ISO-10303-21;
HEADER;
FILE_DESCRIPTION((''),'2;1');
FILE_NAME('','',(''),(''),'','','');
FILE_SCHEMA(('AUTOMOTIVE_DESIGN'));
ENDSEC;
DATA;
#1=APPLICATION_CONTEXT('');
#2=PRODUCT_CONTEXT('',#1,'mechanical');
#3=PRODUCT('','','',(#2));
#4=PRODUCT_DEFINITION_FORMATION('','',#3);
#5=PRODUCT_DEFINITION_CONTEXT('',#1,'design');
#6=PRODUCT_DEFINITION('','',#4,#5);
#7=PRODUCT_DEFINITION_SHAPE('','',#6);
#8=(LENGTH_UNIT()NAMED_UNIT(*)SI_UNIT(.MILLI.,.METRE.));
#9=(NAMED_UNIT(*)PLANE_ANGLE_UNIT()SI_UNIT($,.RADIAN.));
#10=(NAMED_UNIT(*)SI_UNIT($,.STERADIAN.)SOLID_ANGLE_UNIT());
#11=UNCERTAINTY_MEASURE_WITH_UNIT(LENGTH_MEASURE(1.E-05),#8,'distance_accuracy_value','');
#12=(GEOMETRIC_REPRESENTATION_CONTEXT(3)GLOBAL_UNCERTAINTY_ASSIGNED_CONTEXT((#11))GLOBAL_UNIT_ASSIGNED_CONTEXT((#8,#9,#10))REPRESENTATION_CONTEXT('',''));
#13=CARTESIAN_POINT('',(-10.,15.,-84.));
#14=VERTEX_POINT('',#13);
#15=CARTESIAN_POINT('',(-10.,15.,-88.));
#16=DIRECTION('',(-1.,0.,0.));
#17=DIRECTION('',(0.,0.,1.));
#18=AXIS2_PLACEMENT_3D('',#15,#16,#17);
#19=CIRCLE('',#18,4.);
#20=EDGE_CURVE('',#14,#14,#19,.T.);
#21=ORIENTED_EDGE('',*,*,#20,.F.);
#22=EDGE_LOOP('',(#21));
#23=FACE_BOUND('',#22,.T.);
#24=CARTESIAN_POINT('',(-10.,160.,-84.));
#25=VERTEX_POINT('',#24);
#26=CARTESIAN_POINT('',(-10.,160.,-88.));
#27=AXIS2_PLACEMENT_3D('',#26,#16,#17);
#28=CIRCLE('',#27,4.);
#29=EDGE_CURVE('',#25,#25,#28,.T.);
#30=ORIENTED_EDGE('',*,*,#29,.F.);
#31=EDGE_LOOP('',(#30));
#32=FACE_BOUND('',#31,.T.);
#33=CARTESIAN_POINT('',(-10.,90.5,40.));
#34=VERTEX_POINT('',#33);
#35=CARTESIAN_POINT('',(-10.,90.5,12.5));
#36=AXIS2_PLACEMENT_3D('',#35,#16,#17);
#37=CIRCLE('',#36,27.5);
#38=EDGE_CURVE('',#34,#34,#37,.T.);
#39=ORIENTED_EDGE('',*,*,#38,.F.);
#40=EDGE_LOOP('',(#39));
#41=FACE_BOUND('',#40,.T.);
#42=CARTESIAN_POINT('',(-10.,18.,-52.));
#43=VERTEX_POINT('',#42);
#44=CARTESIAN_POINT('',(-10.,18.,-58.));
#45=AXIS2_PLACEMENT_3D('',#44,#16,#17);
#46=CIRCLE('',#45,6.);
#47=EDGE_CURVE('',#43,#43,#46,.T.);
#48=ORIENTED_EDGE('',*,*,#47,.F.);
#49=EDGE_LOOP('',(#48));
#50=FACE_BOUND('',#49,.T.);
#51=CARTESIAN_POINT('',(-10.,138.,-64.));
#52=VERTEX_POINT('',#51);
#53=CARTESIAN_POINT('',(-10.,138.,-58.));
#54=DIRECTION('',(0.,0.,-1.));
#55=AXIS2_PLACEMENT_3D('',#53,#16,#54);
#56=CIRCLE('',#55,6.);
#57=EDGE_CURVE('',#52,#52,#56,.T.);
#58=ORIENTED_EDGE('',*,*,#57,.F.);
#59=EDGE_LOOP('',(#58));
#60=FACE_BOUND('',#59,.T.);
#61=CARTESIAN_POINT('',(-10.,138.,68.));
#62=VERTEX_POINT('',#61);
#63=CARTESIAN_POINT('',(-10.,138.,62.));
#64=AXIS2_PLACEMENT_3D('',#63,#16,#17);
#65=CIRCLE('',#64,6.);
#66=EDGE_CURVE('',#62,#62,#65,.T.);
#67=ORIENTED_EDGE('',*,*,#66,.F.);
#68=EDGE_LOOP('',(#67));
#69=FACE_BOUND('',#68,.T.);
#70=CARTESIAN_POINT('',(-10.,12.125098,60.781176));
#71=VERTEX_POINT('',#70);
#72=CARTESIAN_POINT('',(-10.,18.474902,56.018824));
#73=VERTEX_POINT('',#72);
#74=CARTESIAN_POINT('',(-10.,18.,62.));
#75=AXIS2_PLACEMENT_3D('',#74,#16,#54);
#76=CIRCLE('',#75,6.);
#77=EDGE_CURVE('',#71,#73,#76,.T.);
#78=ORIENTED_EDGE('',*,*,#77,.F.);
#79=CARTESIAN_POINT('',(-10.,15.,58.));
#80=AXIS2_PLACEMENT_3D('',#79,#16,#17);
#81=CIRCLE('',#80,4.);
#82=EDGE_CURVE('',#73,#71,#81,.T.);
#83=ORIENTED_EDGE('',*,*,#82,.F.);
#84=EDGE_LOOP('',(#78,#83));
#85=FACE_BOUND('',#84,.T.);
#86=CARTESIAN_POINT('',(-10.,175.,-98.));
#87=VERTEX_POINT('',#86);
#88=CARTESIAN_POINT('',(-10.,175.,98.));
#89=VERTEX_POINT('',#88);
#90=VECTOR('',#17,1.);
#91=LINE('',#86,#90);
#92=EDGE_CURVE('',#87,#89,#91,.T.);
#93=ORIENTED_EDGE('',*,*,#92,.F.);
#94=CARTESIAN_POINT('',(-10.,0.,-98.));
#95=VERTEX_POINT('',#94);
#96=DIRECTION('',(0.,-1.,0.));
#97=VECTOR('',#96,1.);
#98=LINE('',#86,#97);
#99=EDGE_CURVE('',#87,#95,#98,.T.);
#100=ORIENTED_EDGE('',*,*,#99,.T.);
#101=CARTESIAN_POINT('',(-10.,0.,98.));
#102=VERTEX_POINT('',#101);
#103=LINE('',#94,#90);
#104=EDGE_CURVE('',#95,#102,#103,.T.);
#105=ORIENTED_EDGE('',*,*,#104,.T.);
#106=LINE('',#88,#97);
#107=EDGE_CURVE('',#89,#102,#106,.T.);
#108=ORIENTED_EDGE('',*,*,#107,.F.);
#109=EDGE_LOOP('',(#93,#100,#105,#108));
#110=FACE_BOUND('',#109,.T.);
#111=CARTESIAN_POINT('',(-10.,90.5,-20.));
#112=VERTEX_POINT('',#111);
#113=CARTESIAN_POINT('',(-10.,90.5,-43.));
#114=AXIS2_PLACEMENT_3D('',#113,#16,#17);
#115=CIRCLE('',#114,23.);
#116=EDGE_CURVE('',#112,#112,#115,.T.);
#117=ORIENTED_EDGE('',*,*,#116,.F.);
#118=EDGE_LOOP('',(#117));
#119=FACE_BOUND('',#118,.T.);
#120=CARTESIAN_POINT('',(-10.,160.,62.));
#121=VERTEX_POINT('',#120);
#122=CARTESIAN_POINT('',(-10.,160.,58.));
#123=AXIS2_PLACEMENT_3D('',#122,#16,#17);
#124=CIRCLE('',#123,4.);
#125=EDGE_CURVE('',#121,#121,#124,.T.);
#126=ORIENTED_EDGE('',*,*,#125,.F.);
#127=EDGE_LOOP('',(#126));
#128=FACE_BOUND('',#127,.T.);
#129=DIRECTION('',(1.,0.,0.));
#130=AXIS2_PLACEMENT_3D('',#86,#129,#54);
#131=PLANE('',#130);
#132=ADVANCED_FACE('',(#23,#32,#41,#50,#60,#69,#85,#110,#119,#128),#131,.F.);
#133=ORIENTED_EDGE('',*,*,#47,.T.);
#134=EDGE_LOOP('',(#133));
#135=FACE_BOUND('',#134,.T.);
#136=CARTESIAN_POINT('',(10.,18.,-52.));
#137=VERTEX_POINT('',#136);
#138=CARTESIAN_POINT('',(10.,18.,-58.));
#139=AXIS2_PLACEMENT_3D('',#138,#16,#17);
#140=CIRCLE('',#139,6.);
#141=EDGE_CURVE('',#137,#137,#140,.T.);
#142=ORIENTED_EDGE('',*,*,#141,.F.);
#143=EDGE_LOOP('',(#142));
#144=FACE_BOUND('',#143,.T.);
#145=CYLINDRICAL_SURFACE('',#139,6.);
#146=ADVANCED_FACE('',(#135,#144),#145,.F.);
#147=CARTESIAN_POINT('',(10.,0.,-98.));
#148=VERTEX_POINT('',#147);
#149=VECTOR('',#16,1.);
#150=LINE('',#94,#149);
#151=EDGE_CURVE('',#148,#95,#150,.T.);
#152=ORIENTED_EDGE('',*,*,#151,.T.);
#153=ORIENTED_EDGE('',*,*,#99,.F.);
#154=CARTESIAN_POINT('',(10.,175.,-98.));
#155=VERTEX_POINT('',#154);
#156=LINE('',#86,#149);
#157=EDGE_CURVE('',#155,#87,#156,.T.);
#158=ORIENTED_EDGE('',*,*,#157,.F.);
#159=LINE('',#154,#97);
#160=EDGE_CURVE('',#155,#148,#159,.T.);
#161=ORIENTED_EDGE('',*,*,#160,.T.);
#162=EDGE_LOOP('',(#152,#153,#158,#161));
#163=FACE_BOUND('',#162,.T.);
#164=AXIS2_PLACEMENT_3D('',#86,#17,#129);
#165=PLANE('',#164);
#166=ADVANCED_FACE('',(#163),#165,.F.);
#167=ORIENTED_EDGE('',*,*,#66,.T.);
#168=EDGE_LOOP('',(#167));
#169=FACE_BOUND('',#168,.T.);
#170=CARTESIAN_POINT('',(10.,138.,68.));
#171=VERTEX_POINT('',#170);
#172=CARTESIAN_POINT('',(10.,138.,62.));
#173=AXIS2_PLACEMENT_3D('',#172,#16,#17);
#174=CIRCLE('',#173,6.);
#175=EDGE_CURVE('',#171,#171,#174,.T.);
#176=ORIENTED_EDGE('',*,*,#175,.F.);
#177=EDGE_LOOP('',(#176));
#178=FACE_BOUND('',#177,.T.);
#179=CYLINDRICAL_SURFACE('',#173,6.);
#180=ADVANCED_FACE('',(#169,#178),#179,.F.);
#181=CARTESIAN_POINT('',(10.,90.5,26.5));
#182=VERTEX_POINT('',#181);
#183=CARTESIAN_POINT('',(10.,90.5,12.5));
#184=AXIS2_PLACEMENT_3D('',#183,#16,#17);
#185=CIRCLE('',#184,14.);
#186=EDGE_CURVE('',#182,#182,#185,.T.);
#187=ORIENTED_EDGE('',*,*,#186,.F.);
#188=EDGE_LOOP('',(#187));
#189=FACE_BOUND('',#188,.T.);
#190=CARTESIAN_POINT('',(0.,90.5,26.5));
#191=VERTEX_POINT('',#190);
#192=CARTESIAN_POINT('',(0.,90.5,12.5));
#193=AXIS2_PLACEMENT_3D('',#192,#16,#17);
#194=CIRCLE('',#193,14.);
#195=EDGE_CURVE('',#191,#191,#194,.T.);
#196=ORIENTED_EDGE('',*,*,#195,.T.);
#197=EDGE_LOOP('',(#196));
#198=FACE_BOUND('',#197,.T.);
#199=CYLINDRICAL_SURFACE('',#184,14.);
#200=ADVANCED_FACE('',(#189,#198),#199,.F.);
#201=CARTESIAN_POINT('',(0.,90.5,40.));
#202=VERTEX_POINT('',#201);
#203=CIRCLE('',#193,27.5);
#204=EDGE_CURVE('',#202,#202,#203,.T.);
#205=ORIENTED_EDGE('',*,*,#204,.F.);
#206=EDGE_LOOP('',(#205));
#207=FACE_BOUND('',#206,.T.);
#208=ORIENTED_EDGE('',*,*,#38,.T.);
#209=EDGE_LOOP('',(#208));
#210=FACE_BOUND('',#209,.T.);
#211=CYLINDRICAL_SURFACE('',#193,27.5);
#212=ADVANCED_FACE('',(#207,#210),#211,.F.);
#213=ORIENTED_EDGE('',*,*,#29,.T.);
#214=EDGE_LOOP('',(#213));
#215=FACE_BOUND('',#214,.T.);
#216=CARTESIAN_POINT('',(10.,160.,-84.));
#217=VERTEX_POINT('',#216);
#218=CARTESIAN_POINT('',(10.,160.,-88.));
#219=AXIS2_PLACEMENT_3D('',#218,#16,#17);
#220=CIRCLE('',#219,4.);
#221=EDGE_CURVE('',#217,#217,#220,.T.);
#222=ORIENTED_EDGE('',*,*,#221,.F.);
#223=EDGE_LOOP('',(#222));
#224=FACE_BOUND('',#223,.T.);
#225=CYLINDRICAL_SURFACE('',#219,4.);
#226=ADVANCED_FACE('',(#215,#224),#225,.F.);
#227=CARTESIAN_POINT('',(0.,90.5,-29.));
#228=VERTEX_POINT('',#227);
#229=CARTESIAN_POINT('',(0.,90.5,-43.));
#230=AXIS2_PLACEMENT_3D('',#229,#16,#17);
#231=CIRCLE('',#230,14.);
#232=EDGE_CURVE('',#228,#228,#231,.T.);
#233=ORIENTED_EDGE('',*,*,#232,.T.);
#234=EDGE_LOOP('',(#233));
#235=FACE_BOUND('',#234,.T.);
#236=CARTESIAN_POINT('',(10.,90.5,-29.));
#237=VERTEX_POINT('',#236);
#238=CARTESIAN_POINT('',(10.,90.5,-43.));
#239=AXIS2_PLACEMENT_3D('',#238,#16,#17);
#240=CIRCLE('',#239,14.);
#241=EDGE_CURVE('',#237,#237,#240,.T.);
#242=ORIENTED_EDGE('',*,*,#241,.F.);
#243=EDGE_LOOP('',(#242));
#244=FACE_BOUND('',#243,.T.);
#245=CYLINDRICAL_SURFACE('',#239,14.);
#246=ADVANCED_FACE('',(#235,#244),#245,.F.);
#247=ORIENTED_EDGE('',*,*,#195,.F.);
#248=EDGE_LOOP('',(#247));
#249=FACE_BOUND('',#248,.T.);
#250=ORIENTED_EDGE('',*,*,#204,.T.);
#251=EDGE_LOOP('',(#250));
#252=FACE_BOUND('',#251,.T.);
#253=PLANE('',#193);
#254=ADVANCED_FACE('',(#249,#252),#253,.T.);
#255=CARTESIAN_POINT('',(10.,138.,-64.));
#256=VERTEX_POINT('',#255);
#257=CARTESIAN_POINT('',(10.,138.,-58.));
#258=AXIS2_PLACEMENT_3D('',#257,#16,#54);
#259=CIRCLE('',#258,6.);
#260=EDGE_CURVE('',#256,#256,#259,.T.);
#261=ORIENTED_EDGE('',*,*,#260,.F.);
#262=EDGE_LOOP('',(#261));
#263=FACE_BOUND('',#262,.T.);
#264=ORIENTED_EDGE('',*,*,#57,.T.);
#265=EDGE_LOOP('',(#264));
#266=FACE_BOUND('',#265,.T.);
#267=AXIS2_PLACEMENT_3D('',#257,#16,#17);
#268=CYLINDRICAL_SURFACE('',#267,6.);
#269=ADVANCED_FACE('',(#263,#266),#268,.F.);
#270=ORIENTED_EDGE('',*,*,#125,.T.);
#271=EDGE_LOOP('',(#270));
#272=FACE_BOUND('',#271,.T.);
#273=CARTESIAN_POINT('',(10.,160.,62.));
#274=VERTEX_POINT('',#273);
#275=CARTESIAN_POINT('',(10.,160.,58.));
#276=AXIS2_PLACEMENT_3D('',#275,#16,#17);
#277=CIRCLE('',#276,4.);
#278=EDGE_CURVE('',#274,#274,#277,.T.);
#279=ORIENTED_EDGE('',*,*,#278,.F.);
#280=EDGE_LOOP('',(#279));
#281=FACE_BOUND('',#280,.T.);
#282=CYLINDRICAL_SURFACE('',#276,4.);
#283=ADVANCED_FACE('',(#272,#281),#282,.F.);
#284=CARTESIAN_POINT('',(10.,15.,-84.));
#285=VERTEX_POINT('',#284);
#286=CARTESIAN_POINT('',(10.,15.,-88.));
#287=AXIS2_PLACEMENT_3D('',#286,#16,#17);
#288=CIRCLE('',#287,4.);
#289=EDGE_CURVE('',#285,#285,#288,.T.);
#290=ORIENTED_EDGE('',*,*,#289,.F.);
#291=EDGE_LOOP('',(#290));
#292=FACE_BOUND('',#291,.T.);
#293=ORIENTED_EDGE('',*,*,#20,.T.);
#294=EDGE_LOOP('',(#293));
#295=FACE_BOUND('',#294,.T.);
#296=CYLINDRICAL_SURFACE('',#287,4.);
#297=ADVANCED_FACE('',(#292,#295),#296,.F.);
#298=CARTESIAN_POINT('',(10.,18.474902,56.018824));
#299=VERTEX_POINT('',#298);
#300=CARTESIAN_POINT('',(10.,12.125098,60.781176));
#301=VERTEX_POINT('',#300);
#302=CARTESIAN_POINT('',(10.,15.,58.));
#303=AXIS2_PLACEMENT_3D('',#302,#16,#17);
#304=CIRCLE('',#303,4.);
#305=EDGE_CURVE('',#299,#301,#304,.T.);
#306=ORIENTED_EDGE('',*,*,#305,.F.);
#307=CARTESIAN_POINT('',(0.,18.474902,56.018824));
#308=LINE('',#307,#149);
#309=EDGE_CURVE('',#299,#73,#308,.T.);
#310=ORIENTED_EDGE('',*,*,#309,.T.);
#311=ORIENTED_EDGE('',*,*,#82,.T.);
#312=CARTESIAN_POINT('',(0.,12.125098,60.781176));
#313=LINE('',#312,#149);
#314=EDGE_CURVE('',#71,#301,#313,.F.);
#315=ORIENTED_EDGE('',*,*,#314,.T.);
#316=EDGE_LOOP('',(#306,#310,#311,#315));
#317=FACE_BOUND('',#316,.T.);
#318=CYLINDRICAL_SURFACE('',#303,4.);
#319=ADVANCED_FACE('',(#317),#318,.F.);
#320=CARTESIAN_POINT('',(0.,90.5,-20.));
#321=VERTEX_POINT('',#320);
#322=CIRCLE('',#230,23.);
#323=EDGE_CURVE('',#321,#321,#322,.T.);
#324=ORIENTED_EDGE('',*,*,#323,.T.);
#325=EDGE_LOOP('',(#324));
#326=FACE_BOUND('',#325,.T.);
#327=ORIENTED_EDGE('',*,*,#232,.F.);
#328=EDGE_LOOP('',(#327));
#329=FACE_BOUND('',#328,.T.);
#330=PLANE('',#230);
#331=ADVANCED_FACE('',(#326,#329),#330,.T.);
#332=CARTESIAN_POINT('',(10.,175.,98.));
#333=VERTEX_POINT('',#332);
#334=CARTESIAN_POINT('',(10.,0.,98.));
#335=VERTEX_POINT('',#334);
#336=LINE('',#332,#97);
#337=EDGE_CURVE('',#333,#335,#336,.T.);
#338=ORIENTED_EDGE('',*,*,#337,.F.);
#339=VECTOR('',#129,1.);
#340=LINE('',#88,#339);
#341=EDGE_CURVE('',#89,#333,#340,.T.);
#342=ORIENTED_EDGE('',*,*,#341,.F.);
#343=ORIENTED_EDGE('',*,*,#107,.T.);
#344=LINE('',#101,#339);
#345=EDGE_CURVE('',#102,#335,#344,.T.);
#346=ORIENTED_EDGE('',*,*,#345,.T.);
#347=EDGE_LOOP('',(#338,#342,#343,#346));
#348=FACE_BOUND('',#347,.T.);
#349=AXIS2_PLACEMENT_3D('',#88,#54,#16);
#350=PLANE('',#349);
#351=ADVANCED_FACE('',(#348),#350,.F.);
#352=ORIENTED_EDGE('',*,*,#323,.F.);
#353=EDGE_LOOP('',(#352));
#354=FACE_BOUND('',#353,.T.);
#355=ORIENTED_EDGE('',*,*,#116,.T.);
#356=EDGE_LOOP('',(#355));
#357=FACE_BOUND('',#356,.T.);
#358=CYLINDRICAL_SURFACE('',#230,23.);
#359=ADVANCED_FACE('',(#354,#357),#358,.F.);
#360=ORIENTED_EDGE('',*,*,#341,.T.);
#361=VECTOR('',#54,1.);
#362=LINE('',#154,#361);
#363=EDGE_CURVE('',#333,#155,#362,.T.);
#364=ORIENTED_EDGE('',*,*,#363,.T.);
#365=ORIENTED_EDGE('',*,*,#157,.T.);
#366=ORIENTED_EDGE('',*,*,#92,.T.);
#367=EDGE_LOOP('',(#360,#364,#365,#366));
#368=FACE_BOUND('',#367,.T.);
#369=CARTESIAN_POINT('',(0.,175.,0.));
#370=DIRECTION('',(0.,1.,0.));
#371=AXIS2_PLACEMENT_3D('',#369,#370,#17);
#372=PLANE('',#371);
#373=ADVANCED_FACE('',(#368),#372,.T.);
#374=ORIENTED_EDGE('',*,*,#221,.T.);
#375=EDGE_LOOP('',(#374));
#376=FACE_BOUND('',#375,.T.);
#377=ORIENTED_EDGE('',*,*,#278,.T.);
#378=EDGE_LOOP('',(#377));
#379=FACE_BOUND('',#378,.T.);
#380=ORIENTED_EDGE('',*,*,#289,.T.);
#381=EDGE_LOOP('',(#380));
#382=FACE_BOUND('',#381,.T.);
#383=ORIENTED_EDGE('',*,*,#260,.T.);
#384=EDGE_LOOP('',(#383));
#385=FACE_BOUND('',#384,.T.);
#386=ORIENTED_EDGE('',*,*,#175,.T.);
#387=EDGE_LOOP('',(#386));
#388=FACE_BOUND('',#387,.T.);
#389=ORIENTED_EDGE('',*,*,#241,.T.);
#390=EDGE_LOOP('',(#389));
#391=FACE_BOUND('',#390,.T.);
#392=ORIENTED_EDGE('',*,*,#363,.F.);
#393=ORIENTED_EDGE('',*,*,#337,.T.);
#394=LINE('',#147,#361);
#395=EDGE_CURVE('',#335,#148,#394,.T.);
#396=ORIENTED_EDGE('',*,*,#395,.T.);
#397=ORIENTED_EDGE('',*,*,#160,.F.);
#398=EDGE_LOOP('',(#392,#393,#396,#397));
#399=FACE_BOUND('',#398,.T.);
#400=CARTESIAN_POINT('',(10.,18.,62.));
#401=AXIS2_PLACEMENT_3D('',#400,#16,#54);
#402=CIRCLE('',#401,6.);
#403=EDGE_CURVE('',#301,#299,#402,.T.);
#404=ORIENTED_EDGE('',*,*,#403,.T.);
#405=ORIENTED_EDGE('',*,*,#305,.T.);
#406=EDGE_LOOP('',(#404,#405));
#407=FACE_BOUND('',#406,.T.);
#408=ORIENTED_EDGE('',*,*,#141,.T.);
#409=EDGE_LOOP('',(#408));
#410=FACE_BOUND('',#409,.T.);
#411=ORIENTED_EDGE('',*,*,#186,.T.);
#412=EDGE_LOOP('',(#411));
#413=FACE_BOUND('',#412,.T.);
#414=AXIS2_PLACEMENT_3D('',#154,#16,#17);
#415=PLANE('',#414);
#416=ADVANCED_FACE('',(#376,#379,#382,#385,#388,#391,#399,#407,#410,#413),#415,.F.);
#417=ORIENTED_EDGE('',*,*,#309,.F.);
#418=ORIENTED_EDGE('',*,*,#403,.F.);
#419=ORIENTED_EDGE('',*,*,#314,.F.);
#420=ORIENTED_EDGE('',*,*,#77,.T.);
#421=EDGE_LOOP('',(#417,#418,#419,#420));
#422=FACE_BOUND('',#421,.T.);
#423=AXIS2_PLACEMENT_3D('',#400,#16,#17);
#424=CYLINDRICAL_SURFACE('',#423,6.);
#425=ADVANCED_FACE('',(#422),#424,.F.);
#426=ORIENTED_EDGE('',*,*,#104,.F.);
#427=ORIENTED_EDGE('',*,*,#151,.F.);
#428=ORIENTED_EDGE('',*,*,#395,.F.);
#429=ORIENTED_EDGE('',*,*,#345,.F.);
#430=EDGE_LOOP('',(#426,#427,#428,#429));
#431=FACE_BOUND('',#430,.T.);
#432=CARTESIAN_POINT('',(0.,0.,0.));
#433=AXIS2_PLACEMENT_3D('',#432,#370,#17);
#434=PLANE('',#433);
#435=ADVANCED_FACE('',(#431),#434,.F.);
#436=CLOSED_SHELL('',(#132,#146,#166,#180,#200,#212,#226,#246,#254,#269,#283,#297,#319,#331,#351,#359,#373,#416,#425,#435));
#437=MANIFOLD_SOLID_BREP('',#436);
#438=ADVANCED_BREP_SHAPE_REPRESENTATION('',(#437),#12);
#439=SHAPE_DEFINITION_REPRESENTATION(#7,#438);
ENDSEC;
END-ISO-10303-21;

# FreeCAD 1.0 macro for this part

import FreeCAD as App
import Part
import Sketcher


def add_polygon(sketch, points):
    """Adds a closed chain of lines whose ends are joined by coincident constraints."""
    first, n = sketch.GeometryCount, len(points)
    for a, b in zip(points, points[1:] + points[:1]):
        sketch.addGeometry(Part.LineSegment(App.Vector(*a, 0), App.Vector(*b, 0)), False)
    for i in range(n):
        sketch.addConstraint(Sketcher.Constraint("Coincident", first + i, 2, first + (i + 1) % n, 1))

doc = App.newDocument("Part")
body = doc.addObject("PartDesign::Body", "Body")

sketch1 = body.newObject("Sketcher::SketchObject", "Sketch")
sketch1.AttachmentSupport = (doc.getObject("XZ_Plane"), [""])
sketch1.MapMode = "FlatFace"
add_polygon(sketch1, [(-10, -98), (-10, 98), (10, 98), (10, -98)])
sketch1.addConstraint(Sketcher.Constraint("Vertical", 0))
sketch1.addConstraint(Sketcher.Constraint("Horizontal", 1))
sketch1.addConstraint(Sketcher.Constraint("Vertical", 2))
sketch1.addConstraint(Sketcher.Constraint("Horizontal", 3))
sketch1.addConstraint(Sketcher.Constraint("Symmetric", 0, 2, 2, 2, -1, 1))
sketch1.addConstraint(Sketcher.Constraint("DistanceX", 1, 1, 1, 2, 20.0))
sketch1.addConstraint(Sketcher.Constraint("DistanceY", 0, 1, 0, 2, 196.0))
pad1 = body.newObject("PartDesign::Pad", "Pad")
pad1.Profile = sketch1
pad1.Length = 175
pad1.Reversed = True

sketch2 = body.newObject("Sketcher::SketchObject", "Sketch001")
sketch2.AttachmentSupport = (doc.getObject("YZ_Plane"), [""])
sketch2.MapMode = "FlatFace"
sketch2.AttachmentOffset = App.Placement(App.Vector(0, 0, -10), App.Rotation())
sketch2.addGeometry(Part.Circle(App.Vector(90, 12, 0), App.Vector(0, 0, 1), 28), False)
sketch2.addGeometry(Part.Circle(App.Vector(90, -43, 0), App.Vector(0, 0, 1), 23), False)
sketch2.addConstraint(Sketcher.Constraint("Vertical", 0, 3, 1, 3))
sketch2.addConstraint(Sketcher.Constraint("Diameter", 0, 55.0))
sketch2.addConstraint(Sketcher.Constraint("Diameter", 1, 46.0))
sketch2.addConstraint(Sketcher.Constraint("DistanceY", 1, 3, -1, 1, 43.0))
sketch2.addConstraint(Sketcher.Constraint("DistanceX", -1, 1, 0, 3, 90.5))
sketch2.addConstraint(Sketcher.Constraint("DistanceY", -1, 1, 0, 3, 12.5))
pocket1 = body.newObject("PartDesign::Pocket", "Pocket")
pocket1.Profile = sketch2
pocket1.Length = 10
pocket1.Reversed = True

sketch3 = body.newObject("Sketcher::SketchObject", "Sketch002")
sketch3.AttachmentSupport = (doc.getObject("YZ_Plane"), [""])
sketch3.MapMode = "FlatFace"
sketch3.addGeometry(Part.Circle(App.Vector(90, 12, 0), App.Vector(0, 0, 1), 14), False)
sketch3.addGeometry(Part.Circle(App.Vector(90, -43, 0), App.Vector(0, 0, 1), 14), False)
sketch3.addConstraint(Sketcher.Constraint("Equal", 0, 1))
sketch3.addConstraint(Sketcher.Constraint("Vertical", 0, 3, 1, 3))
sketch3.addConstraint(Sketcher.Constraint("Diameter", 0, 28.0))
sketch3.addConstraint(Sketcher.Constraint("DistanceY", 1, 3, -1, 1, 43.0))
sketch3.addConstraint(Sketcher.Constraint("DistanceX", -1, 1, 0, 3, 90.5))
sketch3.addConstraint(Sketcher.Constraint("DistanceY", -1, 1, 0, 3, 12.5))
pocket2 = body.newObject("PartDesign::Pocket", "Pocket001")
pocket2.Profile = sketch3
pocket2.Type = "ThroughAll"
pocket2.Reversed = True

sketch4 = body.newObject("Sketcher::SketchObject", "Sketch003")
sketch4.AttachmentSupport = (doc.getObject("YZ_Plane"), [""])
sketch4.MapMode = "FlatFace"
sketch4.AttachmentOffset = App.Placement(App.Vector(0, 0, -10), App.Rotation())
sketch4.addGeometry(Part.Circle(App.Vector(15, 58, 0), App.Vector(0, 0, 1), 4), False)
sketch4.addGeometry(Part.Circle(App.Vector(15, -88, 0), App.Vector(0, 0, 1), 4), False)
sketch4.addGeometry(Part.Circle(App.Vector(160, -88, 0), App.Vector(0, 0, 1), 4), False)
sketch4.addGeometry(Part.Circle(App.Vector(160, 58, 0), App.Vector(0, 0, 1), 4), False)
sketch4.addConstraint(Sketcher.Constraint("Equal", 0, 1))
sketch4.addConstraint(Sketcher.Constraint("Equal", 1, 2))
sketch4.addConstraint(Sketcher.Constraint("Equal", 2, 3))
sketch4.addConstraint(Sketcher.Constraint("Horizontal", 1, 3, 2, 3))
sketch4.addConstraint(Sketcher.Constraint("Horizontal", 0, 3, 3, 3))
sketch4.addConstraint(Sketcher.Constraint("Vertical", 0, 3, 1, 3))
sketch4.addConstraint(Sketcher.Constraint("Vertical", 2, 3, 3, 3))
sketch4.addConstraint(Sketcher.Constraint("Diameter", 0, 8.0))
sketch4.addConstraint(Sketcher.Constraint("DistanceX", -1, 1, 0, 3, 15.0))
sketch4.addConstraint(Sketcher.Constraint("DistanceY", -1, 1, 0, 3, 58.0))
sketch4.addConstraint(Sketcher.Constraint("DistanceY", 1, 3, -1, 1, 88.0))
sketch4.addConstraint(Sketcher.Constraint("DistanceX", -1, 1, 2, 3, 160.0))
pocket3 = body.newObject("PartDesign::Pocket", "Pocket002")
pocket3.Profile = sketch4
pocket3.Type = "ThroughAll"
pocket3.Reversed = True

sketch5 = body.newObject("Sketcher::SketchObject", "Sketch004")
sketch5.AttachmentSupport = (doc.getObject("YZ_Plane"), [""])
sketch5.MapMode = "FlatFace"
sketch5.AttachmentOffset = App.Placement(App.Vector(0, 0, -10), App.Rotation())
sketch5.addGeometry(Part.Circle(App.Vector(138, 62, 0), App.Vector(0, 0, 1), 6), False)
sketch5.addGeometry(Part.Circle(App.Vector(18, 62, 0), App.Vector(0, 0, 1), 6), False)
sketch5.addGeometry(Part.Circle(App.Vector(138, -58, 0), App.Vector(0, 0, 1), 6), False)
sketch5.addGeometry(Part.Circle(App.Vector(18, -58, 0), App.Vector(0, 0, 1), 6), False)
sketch5.addConstraint(Sketcher.Constraint("Equal", 0, 1))
sketch5.addConstraint(Sketcher.Constraint("Equal", 1, 2))
sketch5.addConstraint(Sketcher.Constraint("Equal", 2, 3))
sketch5.addConstraint(Sketcher.Constraint("Horizontal", 0, 3, 1, 3))
sketch5.addConstraint(Sketcher.Constraint("Horizontal", 2, 3, 3, 3))
sketch5.addConstraint(Sketcher.Constraint("Vertical", 0, 3, 2, 3))
sketch5.addConstraint(Sketcher.Constraint("Vertical", 1, 3, 3, 3))
sketch5.addConstraint(Sketcher.Constraint("Diameter", 0, 12.0))
sketch5.addConstraint(Sketcher.Constraint("DistanceX", -1, 1, 0, 3, 138.0))
sketch5.addConstraint(Sketcher.Constraint("DistanceY", -1, 1, 0, 3, 62.0))
sketch5.addConstraint(Sketcher.Constraint("DistanceX", -1, 1, 1, 3, 18.0))
sketch5.addConstraint(Sketcher.Constraint("DistanceY", 2, 3, -1, 1, 58.0))
pocket4 = body.newObject("PartDesign::Pocket", "Pocket003")
pocket4.Profile = sketch5
pocket4.Type = "ThroughAll"
pocket4.Reversed = True

doc.recompute()
